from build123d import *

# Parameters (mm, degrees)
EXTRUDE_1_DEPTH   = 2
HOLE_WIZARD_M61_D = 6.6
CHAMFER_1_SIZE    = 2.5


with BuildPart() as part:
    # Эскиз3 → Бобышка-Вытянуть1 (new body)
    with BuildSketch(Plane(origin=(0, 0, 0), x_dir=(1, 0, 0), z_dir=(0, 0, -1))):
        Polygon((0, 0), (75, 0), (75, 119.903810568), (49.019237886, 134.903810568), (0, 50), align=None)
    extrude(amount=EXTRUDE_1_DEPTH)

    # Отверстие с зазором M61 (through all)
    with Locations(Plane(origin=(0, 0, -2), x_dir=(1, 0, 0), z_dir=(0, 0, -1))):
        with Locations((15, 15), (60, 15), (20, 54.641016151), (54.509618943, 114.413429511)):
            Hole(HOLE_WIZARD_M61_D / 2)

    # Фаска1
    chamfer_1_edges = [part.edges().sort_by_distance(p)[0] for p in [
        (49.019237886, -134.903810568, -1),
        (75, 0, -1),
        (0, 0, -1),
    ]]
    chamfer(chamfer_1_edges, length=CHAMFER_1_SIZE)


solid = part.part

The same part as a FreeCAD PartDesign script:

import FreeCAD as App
import Part
import Sketcher

V = App.Vector
Q = App.Units.Quantity


def edges_at(feature, points):
    """Names of the edges that pass closest to the given points."""
    edges = feature.Shape.Edges
    near = lambda p: min(range(len(edges)), key=lambda i: edges[i].distToShape(Part.Vertex(*p))[0])
    return sorted({f"Edge{near(p) + 1}" for p in points})


def add_polygon(sketch, points):
    """Adds a closed chain of lines whose ends are joined by coincident constraints."""
    first, n = sketch.GeometryCount, len(points)
    for a, b in zip(points, points[1:] + points[:1]):
        sketch.addGeometry(Part.LineSegment(App.Vector(*a, 0), App.Vector(*b, 0)), False)
    for i in range(n):
        sketch.addConstraint(Sketcher.Constraint("Coincident", first + i, 2, first + (i + 1) % n, 1))

doc = App.newDocument("Part")
body = doc.addObject("PartDesign::Body", "Body")

# Sketch on XY plane
sketch1 = doc.addObject("Sketcher::SketchObject", "Sketch")
body.addObject(sketch1)
sketch1.AttachmentSupport = (doc.XY_Plane, [""])
sketch1.MapMode = "FlatFace"
add_polygon(sketch1, [(0, 0), (75, 0), (75, -120), (49, -135), (0, -50)])  # lines 0-4
sketch1.addConstraint([
    Sketcher.Constraint("Horizontal", 0),
    Sketcher.Constraint("Vertical", 1),
    Sketcher.Constraint("Vertical", 4),
    Sketcher.Constraint("Coincident", 4, 2, -1, 1),
    Sketcher.Constraint("Perpendicular", 2, 3),
    Sketcher.Constraint("DistanceX", 0, 1, 0, 2, Q("75 mm")),
    Sketcher.Constraint("DistanceY", 4, 1, 4, 2, Q("50 mm")),
    Sketcher.Constraint("Angle", 2, Q("-150 deg")),
    Sketcher.Constraint("Distance", 2, Q("30 mm")),
])
pad1 = doc.addObject("PartDesign::Pad", "Pad")
body.addObject(pad1)
pad1.Profile = sketch1
pad1.Length = 2
pad1.Reversed = True

# Sketch on XY plane
sketch2 = doc.addObject("Sketcher::SketchObject", "Sketch001")
body.addObject(sketch2)
sketch2.AttachmentSupport = (doc.XY_Plane, [""])
sketch2.MapMode = "FlatFace"
sketch2.AttachmentOffset = App.Placement(V(0, 0, -2), App.Rotation())
sketch2.addGeometry([
    Part.Circle(V(15, -15, 0), V(0, 0, 1), 3.3),
    Part.Circle(V(60, -15, 0), V(0, 0, 1), 3.3),
    Part.Circle(V(20, -54.6, 0), V(0, 0, 1), 3.3),
    Part.Circle(V(54.5, -114.4, 0), V(0, 0, 1), 3.3),
], False)
sketch2.addConstraint([
    Sketcher.Constraint("Equal", 0, 1),
    Sketcher.Constraint("Equal", 1, 2),
    Sketcher.Constraint("Equal", 2, 3),
    Sketcher.Constraint("Horizontal", 0, 3, 1, 3),
    Sketcher.Constraint("Diameter", 0, Q("6.6 mm")),
    Sketcher.Constraint("DistanceX", -1, 1, 0, 3, Q("15 mm")),
    Sketcher.Constraint("DistanceY", 0, 3, -1, 1, Q("15 mm")),
    Sketcher.Constraint("DistanceX", -1, 1, 1, 3, Q("60 mm")),
    Sketcher.Constraint("DistanceX", -1, 1, 2, 3, Q("20 mm")),
    Sketcher.Constraint("DistanceX", -1, 1, 3, 3, Q("54.509619 mm")),
    Sketcher.Constraint("DistanceY", 3, 3, -1, 1, Q("114.41343 mm")),
    Sketcher.Constraint("DistanceY", 2, 3, -1, 1, Q("54.641016 mm")),
])
doc.recompute()
hole = doc.addObject("PartDesign::Hole", "Hole")
body.addObject(hole)
hole.Profile = sketch2
hole.ThreadType = "None"
hole.Diameter = 6.6
hole.DepthType = "ThroughAll"
hole.Reversed = True
doc.recompute()

chamfer = doc.addObject("PartDesign::Chamfer", "Chamfer")
body.addObject(chamfer)
chamfer.Base = (hole, edges_at(hole, [(49.019, -134.904, -1), (75, 0, -1), (0, 0, -1)]))
chamfer.Size = 2.5

doc.recompute()
